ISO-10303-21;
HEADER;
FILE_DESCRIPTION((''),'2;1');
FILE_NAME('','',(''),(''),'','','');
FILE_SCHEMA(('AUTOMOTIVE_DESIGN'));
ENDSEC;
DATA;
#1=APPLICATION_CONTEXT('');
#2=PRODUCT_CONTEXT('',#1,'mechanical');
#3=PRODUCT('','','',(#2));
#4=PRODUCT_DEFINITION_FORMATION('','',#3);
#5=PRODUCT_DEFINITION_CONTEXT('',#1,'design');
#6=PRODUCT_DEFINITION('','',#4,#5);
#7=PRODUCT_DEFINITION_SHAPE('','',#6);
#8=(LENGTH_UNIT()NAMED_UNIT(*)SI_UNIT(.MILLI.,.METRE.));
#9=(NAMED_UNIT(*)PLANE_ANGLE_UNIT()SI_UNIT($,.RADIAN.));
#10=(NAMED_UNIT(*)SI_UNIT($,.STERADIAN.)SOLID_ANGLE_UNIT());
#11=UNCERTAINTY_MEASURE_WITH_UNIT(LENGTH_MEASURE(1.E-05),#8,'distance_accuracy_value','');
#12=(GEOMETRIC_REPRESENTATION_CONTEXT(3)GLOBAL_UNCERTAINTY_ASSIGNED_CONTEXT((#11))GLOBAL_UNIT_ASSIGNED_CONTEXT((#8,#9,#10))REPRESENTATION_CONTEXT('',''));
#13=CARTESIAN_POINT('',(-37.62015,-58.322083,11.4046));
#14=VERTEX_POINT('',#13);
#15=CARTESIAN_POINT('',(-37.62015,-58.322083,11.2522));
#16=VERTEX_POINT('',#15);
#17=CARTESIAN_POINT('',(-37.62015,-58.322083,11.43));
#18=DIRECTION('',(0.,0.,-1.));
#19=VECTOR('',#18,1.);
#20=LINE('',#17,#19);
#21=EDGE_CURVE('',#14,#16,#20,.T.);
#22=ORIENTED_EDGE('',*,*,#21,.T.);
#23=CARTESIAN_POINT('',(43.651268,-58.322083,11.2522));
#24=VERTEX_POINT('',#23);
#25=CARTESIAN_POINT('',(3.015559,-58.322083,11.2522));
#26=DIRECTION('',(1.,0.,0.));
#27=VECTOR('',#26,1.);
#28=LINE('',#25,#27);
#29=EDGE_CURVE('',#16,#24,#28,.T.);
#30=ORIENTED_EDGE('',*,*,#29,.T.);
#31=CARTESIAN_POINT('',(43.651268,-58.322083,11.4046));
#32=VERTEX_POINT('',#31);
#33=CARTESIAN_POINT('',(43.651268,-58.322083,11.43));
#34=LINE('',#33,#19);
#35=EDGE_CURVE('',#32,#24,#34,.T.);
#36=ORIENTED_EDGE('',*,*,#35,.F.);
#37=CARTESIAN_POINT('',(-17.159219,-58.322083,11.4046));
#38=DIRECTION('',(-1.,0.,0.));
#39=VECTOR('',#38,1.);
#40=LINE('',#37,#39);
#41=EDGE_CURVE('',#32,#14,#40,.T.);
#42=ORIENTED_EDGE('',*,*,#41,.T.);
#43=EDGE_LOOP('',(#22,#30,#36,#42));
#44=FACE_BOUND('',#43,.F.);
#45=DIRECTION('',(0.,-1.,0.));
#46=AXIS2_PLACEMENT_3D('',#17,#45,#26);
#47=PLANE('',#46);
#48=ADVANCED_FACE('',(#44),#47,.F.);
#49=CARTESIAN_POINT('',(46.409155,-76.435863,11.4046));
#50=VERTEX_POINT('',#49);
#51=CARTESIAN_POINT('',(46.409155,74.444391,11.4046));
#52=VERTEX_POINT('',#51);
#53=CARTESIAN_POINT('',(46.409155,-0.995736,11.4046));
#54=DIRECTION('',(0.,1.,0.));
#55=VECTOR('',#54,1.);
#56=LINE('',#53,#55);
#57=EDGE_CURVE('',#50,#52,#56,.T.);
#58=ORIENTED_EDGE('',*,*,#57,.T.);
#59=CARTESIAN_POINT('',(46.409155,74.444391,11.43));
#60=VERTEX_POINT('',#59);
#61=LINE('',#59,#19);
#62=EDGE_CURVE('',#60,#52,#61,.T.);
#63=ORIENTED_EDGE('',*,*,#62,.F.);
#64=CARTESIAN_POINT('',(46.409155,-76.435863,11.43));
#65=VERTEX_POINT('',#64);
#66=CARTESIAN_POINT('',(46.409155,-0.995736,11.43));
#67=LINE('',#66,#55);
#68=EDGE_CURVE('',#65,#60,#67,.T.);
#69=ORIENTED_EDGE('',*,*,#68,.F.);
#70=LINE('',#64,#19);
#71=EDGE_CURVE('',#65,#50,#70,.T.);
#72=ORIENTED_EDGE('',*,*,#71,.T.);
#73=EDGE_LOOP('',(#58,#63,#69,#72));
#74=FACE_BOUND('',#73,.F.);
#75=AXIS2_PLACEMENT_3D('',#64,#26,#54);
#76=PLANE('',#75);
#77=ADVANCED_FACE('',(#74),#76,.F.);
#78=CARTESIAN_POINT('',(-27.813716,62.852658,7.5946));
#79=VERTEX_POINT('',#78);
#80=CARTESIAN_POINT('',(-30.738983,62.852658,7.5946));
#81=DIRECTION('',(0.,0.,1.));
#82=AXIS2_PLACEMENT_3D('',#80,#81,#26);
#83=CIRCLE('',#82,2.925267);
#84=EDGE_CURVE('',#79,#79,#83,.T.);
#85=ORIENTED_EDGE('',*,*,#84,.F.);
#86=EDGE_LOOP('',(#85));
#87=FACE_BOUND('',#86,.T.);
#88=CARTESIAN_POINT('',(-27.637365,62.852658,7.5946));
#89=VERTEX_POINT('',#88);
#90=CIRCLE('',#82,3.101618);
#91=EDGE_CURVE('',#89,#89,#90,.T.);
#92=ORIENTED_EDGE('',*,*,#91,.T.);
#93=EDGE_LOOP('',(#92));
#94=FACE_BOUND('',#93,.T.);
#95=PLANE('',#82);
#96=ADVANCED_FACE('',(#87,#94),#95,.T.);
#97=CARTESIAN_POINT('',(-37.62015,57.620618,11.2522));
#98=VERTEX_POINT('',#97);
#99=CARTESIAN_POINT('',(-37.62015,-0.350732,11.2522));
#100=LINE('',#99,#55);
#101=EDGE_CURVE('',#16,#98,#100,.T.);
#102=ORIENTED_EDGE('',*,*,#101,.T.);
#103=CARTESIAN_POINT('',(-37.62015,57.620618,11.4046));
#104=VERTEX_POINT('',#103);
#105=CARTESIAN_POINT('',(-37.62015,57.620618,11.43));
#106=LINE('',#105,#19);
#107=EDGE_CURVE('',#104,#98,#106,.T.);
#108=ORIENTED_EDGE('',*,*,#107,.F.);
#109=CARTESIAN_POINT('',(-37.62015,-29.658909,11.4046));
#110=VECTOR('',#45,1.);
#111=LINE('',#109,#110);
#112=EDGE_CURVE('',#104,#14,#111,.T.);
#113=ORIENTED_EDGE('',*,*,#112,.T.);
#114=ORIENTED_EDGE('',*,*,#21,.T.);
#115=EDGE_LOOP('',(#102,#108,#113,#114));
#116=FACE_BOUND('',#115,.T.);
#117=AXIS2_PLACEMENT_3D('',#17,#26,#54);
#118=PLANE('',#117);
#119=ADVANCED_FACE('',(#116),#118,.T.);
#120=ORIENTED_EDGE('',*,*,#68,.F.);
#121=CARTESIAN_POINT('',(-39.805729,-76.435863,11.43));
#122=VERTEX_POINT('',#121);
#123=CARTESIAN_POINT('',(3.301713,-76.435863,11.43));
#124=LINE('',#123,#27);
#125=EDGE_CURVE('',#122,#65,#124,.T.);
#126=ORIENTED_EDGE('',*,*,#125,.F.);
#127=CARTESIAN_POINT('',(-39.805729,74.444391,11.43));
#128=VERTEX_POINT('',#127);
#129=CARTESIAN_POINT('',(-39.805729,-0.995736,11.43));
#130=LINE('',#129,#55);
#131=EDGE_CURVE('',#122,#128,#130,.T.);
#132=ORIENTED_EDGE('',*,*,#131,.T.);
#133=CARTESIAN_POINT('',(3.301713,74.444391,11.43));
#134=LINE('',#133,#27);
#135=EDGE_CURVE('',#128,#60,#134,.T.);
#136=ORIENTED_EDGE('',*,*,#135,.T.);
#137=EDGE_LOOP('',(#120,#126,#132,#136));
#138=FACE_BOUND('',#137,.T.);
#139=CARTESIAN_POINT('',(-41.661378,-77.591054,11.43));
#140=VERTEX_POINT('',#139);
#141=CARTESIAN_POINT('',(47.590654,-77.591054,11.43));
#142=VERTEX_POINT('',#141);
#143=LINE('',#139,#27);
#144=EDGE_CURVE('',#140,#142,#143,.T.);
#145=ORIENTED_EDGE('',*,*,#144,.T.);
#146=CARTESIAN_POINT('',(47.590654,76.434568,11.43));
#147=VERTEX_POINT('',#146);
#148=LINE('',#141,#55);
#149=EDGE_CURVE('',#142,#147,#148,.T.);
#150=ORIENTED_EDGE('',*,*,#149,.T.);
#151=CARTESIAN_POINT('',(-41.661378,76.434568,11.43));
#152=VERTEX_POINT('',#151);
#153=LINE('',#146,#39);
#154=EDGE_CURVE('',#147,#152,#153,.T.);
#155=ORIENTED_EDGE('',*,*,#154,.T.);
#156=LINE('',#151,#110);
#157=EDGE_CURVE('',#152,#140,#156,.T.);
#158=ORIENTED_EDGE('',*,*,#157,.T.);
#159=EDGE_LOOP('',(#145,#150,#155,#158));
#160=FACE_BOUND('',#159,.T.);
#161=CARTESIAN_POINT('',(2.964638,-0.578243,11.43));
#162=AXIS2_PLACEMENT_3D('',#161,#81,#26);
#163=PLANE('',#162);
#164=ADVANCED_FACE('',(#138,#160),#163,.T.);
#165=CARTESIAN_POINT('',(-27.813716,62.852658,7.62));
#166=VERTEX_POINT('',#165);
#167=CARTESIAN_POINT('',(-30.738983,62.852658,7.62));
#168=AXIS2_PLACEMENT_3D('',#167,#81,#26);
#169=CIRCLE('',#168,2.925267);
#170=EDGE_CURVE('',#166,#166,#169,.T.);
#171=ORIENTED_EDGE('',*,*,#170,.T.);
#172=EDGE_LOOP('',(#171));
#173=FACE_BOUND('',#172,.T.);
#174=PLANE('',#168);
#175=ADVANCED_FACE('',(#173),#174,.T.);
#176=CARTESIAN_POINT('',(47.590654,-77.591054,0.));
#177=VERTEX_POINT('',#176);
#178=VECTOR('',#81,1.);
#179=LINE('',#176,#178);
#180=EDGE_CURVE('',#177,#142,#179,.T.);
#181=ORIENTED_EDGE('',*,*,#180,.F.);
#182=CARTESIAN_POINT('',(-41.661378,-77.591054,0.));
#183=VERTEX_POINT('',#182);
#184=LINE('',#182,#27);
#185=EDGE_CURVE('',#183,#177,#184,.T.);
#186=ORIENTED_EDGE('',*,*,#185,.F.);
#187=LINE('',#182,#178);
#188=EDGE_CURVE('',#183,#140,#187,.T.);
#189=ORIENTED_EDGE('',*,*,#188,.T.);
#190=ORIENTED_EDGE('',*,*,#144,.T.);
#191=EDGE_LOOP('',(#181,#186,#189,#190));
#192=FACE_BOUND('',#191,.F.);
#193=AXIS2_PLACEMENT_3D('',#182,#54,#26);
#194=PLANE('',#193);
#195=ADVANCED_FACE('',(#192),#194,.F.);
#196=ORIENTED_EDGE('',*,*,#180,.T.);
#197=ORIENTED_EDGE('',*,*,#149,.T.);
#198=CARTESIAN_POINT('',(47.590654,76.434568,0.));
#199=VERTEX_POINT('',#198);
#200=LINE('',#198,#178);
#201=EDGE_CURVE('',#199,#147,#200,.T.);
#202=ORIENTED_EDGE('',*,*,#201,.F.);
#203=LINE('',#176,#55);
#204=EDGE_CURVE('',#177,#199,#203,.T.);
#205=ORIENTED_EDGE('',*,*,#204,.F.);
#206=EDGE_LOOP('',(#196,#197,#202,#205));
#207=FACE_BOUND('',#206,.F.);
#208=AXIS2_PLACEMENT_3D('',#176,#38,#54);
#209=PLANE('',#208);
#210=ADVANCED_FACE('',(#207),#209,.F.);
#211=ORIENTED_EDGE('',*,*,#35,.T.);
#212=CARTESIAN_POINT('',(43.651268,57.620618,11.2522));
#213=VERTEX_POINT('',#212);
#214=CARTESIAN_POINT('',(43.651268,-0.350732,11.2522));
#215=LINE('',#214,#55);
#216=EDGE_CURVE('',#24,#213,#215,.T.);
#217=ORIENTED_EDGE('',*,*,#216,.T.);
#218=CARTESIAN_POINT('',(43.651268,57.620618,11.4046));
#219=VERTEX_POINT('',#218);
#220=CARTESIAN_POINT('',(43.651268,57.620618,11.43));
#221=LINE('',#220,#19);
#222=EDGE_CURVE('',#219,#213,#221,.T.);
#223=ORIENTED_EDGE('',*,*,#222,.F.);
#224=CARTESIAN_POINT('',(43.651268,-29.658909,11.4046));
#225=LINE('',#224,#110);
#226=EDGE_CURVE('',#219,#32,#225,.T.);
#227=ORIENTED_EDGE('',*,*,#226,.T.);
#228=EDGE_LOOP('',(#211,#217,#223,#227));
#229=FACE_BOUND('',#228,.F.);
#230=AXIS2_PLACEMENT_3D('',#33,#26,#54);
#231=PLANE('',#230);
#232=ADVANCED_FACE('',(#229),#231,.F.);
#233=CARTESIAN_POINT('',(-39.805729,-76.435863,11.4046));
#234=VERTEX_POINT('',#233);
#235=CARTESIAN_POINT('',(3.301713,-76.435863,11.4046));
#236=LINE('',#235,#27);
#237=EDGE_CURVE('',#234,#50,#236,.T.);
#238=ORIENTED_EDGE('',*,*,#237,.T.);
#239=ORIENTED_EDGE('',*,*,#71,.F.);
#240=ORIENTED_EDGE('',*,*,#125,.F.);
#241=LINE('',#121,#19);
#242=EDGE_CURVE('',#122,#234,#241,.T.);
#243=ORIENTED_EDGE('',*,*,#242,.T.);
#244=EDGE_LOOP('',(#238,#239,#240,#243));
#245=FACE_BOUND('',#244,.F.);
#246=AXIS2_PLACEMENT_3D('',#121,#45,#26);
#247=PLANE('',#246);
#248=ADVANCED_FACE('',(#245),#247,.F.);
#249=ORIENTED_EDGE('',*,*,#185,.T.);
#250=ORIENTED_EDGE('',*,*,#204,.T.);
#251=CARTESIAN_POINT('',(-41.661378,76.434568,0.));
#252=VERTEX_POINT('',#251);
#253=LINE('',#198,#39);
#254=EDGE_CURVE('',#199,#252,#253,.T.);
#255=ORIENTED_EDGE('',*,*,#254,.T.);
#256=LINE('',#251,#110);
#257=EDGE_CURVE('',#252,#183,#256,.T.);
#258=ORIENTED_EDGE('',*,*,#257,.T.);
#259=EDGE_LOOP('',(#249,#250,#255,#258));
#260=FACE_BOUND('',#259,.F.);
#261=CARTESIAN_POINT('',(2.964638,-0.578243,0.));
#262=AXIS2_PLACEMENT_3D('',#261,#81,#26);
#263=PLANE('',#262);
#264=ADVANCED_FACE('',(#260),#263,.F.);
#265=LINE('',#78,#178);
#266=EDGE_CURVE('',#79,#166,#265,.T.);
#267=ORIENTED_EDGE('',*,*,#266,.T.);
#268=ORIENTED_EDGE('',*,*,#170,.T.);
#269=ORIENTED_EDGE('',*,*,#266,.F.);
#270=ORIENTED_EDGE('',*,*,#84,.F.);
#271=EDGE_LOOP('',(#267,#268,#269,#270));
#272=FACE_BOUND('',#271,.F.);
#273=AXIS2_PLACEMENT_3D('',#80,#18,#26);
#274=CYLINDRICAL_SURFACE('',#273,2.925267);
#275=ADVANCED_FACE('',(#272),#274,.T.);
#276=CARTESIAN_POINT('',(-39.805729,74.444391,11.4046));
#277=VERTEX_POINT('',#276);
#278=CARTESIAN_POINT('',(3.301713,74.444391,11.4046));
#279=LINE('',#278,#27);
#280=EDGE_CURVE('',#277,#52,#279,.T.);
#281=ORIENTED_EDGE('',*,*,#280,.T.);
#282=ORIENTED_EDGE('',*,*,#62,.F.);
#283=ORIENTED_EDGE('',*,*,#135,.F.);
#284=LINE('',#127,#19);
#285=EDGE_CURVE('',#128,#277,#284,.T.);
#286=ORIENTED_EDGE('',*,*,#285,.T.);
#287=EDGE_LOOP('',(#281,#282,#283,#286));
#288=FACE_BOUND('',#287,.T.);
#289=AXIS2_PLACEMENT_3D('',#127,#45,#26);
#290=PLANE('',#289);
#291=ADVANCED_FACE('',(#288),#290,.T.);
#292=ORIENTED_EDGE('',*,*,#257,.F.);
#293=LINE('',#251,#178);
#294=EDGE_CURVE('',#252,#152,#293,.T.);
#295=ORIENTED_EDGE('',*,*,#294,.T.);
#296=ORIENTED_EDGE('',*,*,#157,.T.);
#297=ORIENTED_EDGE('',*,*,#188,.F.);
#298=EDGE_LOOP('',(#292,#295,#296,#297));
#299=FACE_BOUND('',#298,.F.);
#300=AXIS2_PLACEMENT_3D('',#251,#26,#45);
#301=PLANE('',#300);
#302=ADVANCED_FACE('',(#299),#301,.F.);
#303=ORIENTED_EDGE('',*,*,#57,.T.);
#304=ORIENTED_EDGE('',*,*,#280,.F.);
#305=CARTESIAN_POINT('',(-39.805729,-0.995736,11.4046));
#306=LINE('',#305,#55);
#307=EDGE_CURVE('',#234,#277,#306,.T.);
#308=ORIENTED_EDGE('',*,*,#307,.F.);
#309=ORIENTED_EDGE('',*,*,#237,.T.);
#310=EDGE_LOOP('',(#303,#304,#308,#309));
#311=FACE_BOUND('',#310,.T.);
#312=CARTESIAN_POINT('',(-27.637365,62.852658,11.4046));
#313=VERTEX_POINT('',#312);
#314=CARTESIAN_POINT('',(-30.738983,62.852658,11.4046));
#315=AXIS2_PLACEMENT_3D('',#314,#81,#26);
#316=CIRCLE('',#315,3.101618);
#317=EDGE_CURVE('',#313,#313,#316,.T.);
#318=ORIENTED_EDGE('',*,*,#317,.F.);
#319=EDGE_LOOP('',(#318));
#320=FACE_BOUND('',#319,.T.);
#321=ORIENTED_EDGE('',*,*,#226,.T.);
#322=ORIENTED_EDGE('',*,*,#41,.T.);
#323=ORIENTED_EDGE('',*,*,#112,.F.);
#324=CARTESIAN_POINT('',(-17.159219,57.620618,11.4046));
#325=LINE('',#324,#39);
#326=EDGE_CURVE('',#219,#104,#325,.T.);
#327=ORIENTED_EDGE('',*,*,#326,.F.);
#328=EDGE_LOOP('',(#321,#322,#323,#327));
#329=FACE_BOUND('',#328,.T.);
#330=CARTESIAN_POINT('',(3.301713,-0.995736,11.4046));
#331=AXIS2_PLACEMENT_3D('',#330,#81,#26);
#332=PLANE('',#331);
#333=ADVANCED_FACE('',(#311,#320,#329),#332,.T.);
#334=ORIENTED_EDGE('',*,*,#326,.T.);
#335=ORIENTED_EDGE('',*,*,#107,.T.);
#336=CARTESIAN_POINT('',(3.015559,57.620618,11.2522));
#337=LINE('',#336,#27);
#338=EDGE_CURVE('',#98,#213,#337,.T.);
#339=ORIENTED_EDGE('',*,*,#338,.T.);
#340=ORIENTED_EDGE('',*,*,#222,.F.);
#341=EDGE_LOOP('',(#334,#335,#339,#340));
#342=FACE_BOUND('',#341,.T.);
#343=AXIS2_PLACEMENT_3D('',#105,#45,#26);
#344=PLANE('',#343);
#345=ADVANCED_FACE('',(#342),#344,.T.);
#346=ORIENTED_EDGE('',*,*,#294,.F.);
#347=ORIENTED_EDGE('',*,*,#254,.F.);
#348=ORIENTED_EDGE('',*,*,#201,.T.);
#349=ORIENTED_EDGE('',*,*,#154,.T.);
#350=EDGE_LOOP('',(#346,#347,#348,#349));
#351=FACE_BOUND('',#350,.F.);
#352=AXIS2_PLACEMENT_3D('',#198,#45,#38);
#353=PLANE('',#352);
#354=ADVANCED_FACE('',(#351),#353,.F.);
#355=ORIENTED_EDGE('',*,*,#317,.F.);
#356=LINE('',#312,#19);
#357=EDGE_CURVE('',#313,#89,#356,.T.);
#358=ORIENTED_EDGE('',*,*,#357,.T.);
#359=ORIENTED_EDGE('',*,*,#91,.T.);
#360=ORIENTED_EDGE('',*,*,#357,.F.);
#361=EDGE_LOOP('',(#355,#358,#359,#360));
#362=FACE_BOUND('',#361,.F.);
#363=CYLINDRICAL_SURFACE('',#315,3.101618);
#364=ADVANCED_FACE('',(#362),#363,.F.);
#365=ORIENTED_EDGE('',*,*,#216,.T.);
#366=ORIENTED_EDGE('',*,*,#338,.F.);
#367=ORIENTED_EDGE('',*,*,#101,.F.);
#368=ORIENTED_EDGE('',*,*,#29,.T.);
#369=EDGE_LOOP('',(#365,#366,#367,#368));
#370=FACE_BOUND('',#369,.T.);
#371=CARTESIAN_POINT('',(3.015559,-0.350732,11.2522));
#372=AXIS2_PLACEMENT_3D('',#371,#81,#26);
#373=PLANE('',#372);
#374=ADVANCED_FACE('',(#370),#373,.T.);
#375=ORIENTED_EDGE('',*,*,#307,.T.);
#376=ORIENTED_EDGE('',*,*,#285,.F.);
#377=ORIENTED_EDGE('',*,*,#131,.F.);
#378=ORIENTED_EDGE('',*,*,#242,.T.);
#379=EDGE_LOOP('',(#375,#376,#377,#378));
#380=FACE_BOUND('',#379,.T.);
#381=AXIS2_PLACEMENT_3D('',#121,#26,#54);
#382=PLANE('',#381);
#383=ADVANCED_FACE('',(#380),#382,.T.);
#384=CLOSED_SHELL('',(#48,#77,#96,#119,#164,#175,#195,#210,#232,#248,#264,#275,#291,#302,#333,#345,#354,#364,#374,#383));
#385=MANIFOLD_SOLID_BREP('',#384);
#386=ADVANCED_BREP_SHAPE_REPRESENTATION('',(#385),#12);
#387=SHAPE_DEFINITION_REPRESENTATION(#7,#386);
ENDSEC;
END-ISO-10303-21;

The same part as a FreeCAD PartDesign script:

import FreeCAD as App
import Part
import Sketcher
from FreeCAD import Vector
Q = App.Units.Quantity


def add_polygon(sketch, points):
    """Adds a closed chain of lines whose ends are joined by coincident constraints."""
    first, n = sketch.GeometryCount, len(points)
    for a, b in zip(points, points[1:] + points[:1]):
        sketch.addGeometry(Part.LineSegment(App.Vector(*a, 0), App.Vector(*b, 0)), False)
    for i in range(n):
        sketch.addConstraint(Sketcher.Constraint("Coincident", first + i, 2, first + (i + 1) % n, 1))

doc = App.newDocument("Part")
params = doc.addObject("Spreadsheet::Sheet", "Params")
for row, (alias, value) in enumerate([
    ("pad1_length", "0.45 in"),
    ("pocket1_length", "0.007 in"),
    ("pocket2_length", "0.001 in"),
    ("pocket3_length", "0.15 in"),
    ("pad2_length", "0.001 in"),
], start=1):
    params.set(f"A{row}", alias)
    params.set(f"B{row}", "=" + value)
    params.setAlias(f"B{row}", alias)

body = doc.addObject("PartDesign::Body", "Body")

# Sketch on XY plane
sketch1 = doc.addObject("Sketcher::SketchObject", "Sketch")
body.addObject(sketch1)
sketch1.AttachmentSupport = (doc.XY_Plane, [""])
sketch1.MapMode = "FlatFace"
add_polygon(sketch1, [(48, 76), (-42, 76), (-42, -78), (48, -78)])  # lines 0-3
sketch1.addConstraint(Sketcher.Constraint("Horizontal", 0))
sketch1.addConstraint(Sketcher.Constraint("Vertical", 1))
sketch1.addConstraint(Sketcher.Constraint("Horizontal", 2))
sketch1.addConstraint(Sketcher.Constraint("Vertical", 3))
sketch1.addConstraint(Sketcher.Constraint("DistanceX", 0, 2, 0, 1, Q("89.252032 mm")))
sketch1.addConstraint(Sketcher.Constraint("DistanceY", 1, 2, 1, 1, Q("154.025622 mm")))
sketch1.addConstraint(Sketcher.Constraint("DistanceY", -1, 1, 0, 2, Q("76.434568 mm")))
sketch1.addConstraint(Sketcher.Constraint("DistanceX", 0, 2, -1, 1, Q("41.661378 mm")))
pad1 = doc.addObject("PartDesign::Pad", "Pad")
body.addObject(pad1)
pad1.Profile = sketch1
pad1.setExpression("Length", "Params.pad1_length")

# Sketch on XY plane
sketch2 = doc.addObject("Sketcher::SketchObject", "Sketch001")
body.addObject(sketch2)
sketch2.AttachmentSupport = (doc.XY_Plane, [""])
sketch2.MapMode = "FlatFace"
sketch2.AttachmentOffset = App.Placement(Vector(0, 0, 0.45 * 25.4), App.Rotation())
add_polygon(sketch2, [(-38, 58), (-38, -58), (44, -58), (44, 58)])  # lines 0-3
sketch2.addConstraint(Sketcher.Constraint("Vertical", 0))
sketch2.addConstraint(Sketcher.Constraint("Horizontal", 1))
sketch2.addConstraint(Sketcher.Constraint("Vertical", 2))
sketch2.addConstraint(Sketcher.Constraint("Horizontal", 3))
sketch2.addConstraint(Sketcher.Constraint("DistanceY", 0, 2, 0, 1, Q("115.942701 mm")))
sketch2.addConstraint(Sketcher.Constraint("DistanceX", 1, 1, 1, 2, Q("81.271418 mm")))
sketch2.addConstraint(Sketcher.Constraint("DistanceX", 0, 2, -1, 1, Q("37.62015 mm")))
sketch2.addConstraint(Sketcher.Constraint("DistanceY", -1, 1, 2, 2, Q("57.620618 mm")))
pocket1 = doc.addObject("PartDesign::Pocket", "Pocket")
body.addObject(pocket1)
pocket1.Profile = sketch2
pocket1.setExpression("Length", "Params.pocket1_length")

# Sketch on XY plane
sketch3 = doc.addObject("Sketcher::SketchObject", "Sketch002")
body.addObject(sketch3)
sketch3.AttachmentSupport = (doc.XY_Plane, [""])
sketch3.MapMode = "FlatFace"
sketch3.AttachmentOffset = App.Placement(Vector(0, 0, 0.45 * 25.4), App.Rotation())
add_polygon(sketch3, [(-40, 74), (-40, -76), (46, -76), (46, 74)])  # lines 0-3
sketch3.addConstraint(Sketcher.Constraint("Vertical", 0))
sketch3.addConstraint(Sketcher.Constraint("Horizontal", 1))
sketch3.addConstraint(Sketcher.Constraint("Vertical", 2))
sketch3.addConstraint(Sketcher.Constraint("Horizontal", 3))
sketch3.addConstraint(Sketcher.Constraint("DistanceX", 1, 1, 1, 2, Q("86.214885 mm")))
sketch3.addConstraint(Sketcher.Constraint("DistanceY", 0, 2, 0, 1, Q("150.880255 mm")))
sketch3.addConstraint(Sketcher.Constraint("DistanceX", 0, 2, -1, 1, Q("39.805729 mm")))
sketch3.addConstraint(Sketcher.Constraint("DistanceY", -1, 1, 2, 2, Q("74.444391 mm")))
pocket2 = doc.addObject("PartDesign::Pocket", "Pocket001")
body.addObject(pocket2)
pocket2.Profile = sketch3
pocket2.setExpression("Length", "Params.pocket2_length")

# Sketch on XY plane
sketch4 = doc.addObject("Sketcher::SketchObject", "Sketch003")
body.addObject(sketch4)
sketch4.AttachmentSupport = (doc.XY_Plane, [""])
sketch4.MapMode = "FlatFace"
sketch4.AttachmentOffset = App.Placement(Vector(0, 0, 0.449 * 25.4), App.Rotation())
sketch4.addGeometry(Part.Circle(Vector(-30.7, 62.9, 0), Vector(0, 0, 1), 3.1), False)
sketch4.addConstraint(Sketcher.Constraint("Diameter", 0, Q("6.203236 mm")))
sketch4.addConstraint(Sketcher.Constraint("DistanceX", 0, 3, -1, 1, Q("30.738983 mm")))
sketch4.addConstraint(Sketcher.Constraint("DistanceY", -1, 1, 0, 3, Q("62.852658 mm")))
pocket3 = doc.addObject("PartDesign::Pocket", "Pocket002")
body.addObject(pocket3)
pocket3.Profile = sketch4
pocket3.setExpression("Length", "Params.pocket3_length")

# Sketch on XY plane
sketch5 = doc.addObject("Sketcher::SketchObject", "Sketch004")
body.addObject(sketch5)
sketch5.AttachmentSupport = (doc.XY_Plane, [""])
sketch5.MapMode = "FlatFace"
sketch5.AttachmentOffset = App.Placement(Vector(0, 0, 0.299 * 25.4), App.Rotation())
sketch5.addGeometry(Part.Circle(Vector(-30.7, 62.9, 0), Vector(0, 0, 1), 2.9), False)
sketch5.addConstraint(Sketcher.Constraint("Diameter", 0, Q("5.850534 mm")))
sketch5.addConstraint(Sketcher.Constraint("DistanceX", 0, 3, -1, 1, Q("30.738983 mm")))
sketch5.addConstraint(Sketcher.Constraint("DistanceY", -1, 1, 0, 3, Q("62.852658 mm")))
pad2 = doc.addObject("PartDesign::Pad", "Pad001")
body.addObject(pad2)
pad2.Profile = sketch5
pad2.setExpression("Length", "Params.pad2_length")

doc.recompute()
